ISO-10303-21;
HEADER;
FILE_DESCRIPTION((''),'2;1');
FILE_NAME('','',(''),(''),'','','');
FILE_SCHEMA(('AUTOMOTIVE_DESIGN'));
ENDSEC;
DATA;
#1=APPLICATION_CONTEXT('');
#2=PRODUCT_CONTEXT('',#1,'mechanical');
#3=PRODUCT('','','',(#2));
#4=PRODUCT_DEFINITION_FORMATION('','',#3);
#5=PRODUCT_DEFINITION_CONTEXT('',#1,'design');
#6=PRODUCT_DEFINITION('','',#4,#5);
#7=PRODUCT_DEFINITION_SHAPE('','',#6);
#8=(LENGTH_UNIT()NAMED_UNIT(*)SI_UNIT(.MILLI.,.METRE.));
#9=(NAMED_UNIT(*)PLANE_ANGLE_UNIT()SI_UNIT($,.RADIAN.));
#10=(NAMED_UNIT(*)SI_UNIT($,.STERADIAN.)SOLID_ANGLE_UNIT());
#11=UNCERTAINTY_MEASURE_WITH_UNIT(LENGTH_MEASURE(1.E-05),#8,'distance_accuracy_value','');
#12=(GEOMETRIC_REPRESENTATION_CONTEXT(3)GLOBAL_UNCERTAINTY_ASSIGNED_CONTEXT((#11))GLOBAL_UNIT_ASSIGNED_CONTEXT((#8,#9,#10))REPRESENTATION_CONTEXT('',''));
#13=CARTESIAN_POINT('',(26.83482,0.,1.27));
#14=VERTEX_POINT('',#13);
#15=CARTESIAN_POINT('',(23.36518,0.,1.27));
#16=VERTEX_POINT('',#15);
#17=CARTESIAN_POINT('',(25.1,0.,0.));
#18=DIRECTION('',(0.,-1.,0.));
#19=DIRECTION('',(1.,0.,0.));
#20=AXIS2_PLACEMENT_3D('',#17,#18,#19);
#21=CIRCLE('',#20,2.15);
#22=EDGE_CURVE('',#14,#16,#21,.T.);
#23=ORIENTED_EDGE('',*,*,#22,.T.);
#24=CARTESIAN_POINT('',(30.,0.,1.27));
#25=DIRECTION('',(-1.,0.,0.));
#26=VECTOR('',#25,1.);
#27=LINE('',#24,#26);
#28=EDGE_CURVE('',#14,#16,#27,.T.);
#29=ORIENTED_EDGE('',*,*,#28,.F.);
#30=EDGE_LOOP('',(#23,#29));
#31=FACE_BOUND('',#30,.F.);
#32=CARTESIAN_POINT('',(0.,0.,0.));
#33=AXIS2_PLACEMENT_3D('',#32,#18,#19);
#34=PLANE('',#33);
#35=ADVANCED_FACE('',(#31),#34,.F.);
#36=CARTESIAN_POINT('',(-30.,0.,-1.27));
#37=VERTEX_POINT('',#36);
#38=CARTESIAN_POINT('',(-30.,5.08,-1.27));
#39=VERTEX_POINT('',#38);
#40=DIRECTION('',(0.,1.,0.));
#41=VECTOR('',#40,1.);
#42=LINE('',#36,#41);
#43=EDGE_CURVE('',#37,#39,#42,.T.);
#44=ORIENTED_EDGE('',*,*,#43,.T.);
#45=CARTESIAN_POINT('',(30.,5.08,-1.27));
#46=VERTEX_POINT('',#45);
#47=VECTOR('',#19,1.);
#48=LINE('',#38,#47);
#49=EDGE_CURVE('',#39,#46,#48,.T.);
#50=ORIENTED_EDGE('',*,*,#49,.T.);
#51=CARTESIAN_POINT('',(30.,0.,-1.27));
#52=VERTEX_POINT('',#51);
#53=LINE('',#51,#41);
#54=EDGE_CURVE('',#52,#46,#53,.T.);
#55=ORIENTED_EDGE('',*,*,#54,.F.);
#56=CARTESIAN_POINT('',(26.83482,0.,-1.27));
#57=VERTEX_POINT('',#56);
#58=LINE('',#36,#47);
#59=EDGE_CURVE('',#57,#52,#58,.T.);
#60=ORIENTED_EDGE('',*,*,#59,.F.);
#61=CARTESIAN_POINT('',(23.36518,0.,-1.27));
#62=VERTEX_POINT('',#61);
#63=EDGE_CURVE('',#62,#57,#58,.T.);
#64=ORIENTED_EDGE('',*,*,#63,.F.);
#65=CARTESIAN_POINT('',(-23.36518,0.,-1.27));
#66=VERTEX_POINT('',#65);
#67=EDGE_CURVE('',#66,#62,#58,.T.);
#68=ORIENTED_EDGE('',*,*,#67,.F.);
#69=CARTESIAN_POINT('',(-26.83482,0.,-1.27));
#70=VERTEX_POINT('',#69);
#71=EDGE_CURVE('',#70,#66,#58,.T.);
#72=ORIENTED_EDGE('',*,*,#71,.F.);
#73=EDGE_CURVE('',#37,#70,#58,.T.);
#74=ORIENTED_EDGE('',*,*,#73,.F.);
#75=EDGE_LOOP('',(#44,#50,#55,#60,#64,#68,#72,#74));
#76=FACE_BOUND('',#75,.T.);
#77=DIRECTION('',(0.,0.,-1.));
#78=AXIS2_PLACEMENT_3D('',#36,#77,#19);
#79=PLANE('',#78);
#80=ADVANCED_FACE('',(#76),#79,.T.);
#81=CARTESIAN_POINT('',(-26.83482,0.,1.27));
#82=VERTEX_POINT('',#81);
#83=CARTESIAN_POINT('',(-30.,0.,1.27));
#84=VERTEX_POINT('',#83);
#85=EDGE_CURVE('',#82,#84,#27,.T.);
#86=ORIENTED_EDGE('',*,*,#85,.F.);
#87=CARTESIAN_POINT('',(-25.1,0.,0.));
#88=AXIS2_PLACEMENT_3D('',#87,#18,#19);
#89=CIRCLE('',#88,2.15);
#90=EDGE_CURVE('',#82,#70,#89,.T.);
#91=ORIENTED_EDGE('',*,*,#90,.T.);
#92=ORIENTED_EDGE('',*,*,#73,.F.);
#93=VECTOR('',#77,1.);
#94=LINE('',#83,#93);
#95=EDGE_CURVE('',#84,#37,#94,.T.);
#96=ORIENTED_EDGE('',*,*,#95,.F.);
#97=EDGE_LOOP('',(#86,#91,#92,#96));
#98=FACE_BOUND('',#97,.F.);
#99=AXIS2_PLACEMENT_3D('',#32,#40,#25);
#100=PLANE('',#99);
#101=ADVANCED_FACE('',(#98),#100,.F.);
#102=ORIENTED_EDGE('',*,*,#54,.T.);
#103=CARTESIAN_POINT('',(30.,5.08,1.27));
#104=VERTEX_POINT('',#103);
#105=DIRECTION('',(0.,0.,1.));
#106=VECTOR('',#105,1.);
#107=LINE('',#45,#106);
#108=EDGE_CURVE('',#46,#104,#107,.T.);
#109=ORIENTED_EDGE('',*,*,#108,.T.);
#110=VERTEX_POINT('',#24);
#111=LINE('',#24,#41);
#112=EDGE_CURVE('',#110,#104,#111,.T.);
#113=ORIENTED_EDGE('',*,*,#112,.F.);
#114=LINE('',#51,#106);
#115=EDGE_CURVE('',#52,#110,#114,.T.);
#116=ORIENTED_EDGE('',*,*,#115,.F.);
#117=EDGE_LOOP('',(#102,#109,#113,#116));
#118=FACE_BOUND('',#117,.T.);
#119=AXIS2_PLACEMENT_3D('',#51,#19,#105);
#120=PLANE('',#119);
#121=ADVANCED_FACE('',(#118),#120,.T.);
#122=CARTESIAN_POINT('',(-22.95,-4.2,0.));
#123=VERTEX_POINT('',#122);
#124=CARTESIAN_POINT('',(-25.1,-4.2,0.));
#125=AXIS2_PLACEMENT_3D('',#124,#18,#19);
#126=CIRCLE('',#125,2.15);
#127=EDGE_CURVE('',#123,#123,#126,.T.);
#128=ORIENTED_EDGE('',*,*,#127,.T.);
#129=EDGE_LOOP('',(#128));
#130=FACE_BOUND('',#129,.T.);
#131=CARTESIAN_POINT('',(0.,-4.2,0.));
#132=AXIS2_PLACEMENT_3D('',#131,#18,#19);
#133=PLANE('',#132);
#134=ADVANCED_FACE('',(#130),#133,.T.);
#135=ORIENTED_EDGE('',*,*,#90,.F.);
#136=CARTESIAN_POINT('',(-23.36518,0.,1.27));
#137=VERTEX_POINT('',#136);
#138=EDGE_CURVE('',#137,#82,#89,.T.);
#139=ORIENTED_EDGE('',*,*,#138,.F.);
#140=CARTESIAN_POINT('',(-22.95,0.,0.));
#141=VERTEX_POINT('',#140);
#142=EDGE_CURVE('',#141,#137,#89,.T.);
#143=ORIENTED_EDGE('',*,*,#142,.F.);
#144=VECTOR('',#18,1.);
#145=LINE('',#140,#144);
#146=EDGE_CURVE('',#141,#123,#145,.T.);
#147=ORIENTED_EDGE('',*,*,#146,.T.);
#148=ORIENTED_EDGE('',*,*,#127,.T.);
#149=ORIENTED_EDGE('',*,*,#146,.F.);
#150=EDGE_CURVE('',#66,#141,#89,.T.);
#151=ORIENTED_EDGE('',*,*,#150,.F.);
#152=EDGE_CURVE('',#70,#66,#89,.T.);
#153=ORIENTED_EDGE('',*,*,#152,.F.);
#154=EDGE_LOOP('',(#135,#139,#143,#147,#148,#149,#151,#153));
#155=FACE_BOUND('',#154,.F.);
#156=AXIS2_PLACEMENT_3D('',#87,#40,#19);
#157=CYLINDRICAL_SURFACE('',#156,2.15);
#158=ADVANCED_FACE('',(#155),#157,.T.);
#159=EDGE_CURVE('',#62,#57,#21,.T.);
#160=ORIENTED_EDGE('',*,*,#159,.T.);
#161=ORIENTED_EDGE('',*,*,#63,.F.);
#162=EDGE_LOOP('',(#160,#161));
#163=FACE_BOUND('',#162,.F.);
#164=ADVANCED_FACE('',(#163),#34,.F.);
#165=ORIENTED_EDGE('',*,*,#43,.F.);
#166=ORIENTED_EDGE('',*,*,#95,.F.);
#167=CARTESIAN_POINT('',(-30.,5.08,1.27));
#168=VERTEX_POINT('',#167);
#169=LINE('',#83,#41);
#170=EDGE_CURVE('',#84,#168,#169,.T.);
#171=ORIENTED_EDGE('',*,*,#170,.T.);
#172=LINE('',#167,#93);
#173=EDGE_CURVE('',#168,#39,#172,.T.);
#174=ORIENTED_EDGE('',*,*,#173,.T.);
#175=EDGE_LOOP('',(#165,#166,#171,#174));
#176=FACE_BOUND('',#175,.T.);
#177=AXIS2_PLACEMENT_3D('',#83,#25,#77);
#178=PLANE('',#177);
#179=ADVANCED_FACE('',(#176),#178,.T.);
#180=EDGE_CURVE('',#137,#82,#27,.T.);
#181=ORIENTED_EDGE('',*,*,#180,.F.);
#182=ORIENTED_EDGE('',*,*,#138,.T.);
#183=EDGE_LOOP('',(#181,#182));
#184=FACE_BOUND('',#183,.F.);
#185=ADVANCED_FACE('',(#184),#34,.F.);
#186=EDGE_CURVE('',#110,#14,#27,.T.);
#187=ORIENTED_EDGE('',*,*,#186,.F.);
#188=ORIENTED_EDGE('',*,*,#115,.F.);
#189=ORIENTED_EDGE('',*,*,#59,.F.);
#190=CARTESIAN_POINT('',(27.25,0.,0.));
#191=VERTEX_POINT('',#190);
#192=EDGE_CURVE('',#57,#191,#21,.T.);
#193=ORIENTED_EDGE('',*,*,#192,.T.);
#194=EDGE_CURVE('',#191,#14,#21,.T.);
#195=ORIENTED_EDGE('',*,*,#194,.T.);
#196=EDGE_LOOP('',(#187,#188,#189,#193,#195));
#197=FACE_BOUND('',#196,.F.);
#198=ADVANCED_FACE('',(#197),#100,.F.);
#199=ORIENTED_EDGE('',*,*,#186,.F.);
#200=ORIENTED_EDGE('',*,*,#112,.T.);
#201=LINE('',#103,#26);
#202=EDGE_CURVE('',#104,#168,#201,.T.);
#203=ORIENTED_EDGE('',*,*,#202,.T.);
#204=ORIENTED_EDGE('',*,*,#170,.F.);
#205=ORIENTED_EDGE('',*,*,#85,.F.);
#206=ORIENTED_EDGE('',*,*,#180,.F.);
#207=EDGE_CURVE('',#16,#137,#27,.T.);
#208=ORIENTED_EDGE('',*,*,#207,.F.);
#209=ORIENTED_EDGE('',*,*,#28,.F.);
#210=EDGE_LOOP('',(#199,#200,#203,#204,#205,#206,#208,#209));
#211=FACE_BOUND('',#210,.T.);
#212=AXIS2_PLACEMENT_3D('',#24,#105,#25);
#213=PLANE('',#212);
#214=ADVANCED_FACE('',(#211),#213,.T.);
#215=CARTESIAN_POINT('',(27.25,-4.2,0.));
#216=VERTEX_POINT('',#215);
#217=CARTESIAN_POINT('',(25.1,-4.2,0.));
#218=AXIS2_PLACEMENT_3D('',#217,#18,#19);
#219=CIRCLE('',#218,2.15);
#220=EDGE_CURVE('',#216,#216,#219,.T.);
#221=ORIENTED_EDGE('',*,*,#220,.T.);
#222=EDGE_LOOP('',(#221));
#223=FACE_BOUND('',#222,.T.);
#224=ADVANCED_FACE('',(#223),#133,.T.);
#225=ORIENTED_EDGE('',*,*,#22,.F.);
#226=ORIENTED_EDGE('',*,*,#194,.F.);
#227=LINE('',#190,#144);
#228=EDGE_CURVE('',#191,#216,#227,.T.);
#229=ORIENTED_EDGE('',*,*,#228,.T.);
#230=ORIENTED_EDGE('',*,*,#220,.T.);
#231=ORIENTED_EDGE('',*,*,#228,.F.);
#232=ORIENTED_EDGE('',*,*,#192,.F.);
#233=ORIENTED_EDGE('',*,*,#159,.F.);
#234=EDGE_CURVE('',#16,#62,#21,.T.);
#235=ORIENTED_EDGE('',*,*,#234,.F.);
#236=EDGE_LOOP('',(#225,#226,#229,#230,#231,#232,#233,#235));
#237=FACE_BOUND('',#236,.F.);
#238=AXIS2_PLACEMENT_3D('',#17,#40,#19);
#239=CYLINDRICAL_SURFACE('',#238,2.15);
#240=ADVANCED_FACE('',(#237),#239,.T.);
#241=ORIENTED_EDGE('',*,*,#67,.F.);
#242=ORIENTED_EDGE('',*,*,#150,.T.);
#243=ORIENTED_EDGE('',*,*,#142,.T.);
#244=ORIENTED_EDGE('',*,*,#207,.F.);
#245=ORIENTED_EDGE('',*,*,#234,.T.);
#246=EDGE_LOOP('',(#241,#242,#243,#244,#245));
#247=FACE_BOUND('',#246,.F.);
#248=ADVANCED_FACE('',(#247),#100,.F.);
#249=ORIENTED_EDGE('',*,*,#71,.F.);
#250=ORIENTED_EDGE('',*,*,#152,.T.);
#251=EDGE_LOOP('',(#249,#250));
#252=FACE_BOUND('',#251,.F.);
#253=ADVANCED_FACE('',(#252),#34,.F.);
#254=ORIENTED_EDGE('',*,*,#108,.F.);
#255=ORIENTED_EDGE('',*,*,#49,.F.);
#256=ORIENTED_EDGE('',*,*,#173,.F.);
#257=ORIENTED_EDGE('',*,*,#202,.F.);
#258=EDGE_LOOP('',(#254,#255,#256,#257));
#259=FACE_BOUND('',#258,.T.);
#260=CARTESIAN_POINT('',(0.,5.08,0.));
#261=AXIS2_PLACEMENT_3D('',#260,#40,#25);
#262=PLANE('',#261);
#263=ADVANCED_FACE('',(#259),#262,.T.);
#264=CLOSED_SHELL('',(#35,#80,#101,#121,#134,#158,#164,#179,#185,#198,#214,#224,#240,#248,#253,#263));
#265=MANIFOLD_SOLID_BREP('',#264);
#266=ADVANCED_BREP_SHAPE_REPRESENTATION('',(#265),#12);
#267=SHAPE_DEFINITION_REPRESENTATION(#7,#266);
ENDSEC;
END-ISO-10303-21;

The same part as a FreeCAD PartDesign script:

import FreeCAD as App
import Part
import Sketcher
Q = App.Units.Quantity

doc = App.newDocument("Part")
params = doc.addObject("Spreadsheet::Sheet", "Params")
for row, (alias, value) in enumerate([
    ("sketch1_height", "0.1 in"),
    ("pad1_length", "0.2 in"),
    ("pad2_length", "4.2 mm"),
], start=1):
    params.set(f"A{row}", alias)
    params.set(f"B{row}", "=" + value)
    params.setAlias(f"B{row}", alias)

body = doc.addObject("PartDesign::Body", "Body")

# Sketch on XZ plane
sketch1 = body.newObject("Sketcher::SketchObject", "Sketch")
sketch1.AttachmentSupport = (doc.getObject("XZ_Plane"), [""])
sketch1.MapMode = "FlatFace"
sketch1.addGeometry([
    Part.LineSegment(App.Vector(30, -1.3, 0), App.Vector(-30, -1.3, 0)),
    Part.LineSegment(App.Vector(-30, -1.3, 0), App.Vector(-30, 1.3, 0)),
    Part.LineSegment(App.Vector(-30, 1.3, 0), App.Vector(30, 1.3, 0)),
    Part.LineSegment(App.Vector(30, 1.3, 0), App.Vector(30, -1.3, 0)),
], False)
sketch1.addConstraint([
    Sketcher.Constraint("Coincident", 0, 2, 1, 1),
    Sketcher.Constraint("Coincident", 1, 2, 2, 1),
    Sketcher.Constraint("Coincident", 2, 2, 3, 1),
    Sketcher.Constraint("Coincident", 3, 2, 0, 1),
    Sketcher.Constraint("Horizontal", 0),
    Sketcher.Constraint("Vertical", 1),
    Sketcher.Constraint("Horizontal", 2),
    Sketcher.Constraint("Vertical", 3),
    Sketcher.Constraint("Symmetric", 0, 2, 2, 2, -1, 1),
    Sketcher.Constraint("DistanceY", 1, 1, 1, 2, Q("0.1 in")),
    Sketcher.Constraint("DistanceX", 0, 2, 0, 1, Q("2.3622 in")),
])
sketch1.setExpression("Constraints[9]", "Params.sketch1_height")
pad1 = body.newObject("PartDesign::Pad", "Pad")
pad1.Profile = sketch1
pad1.setExpression("Length", "Params.pad1_length")
pad1.Reversed = True

# Sketch on XZ plane
sketch2 = body.newObject("Sketcher::SketchObject", "Sketch001")
sketch2.AttachmentSupport = (doc.getObject("XZ_Plane"), [""])
sketch2.MapMode = "FlatFace"
sketch2.addGeometry([
    Part.Circle(App.Vector(-25.1, 0, 0), App.Vector(0, 0, 1), 2.1),
    Part.Circle(App.Vector(25.1, 0, 0), App.Vector(0, 0, 1), 2.1),
], False)
sketch2.addConstraint([
    Sketcher.Constraint("Equal", 0, 1),
    Sketcher.Constraint("Symmetric", 0, 3, 1, 3, -1, 1),
    Sketcher.Constraint("PointOnObject", 0, 3, -1),
    Sketcher.Constraint("Diameter", 0, Q("0.1693 in")),
    Sketcher.Constraint("DistanceX", 0, 3, -1, 1, Q("0.9882 in")),
])
pad2 = body.newObject("PartDesign::Pad", "Pad001")
pad2.Profile = sketch2
pad2.setExpression("Length", "Params.pad2_length")

doc.recompute()
